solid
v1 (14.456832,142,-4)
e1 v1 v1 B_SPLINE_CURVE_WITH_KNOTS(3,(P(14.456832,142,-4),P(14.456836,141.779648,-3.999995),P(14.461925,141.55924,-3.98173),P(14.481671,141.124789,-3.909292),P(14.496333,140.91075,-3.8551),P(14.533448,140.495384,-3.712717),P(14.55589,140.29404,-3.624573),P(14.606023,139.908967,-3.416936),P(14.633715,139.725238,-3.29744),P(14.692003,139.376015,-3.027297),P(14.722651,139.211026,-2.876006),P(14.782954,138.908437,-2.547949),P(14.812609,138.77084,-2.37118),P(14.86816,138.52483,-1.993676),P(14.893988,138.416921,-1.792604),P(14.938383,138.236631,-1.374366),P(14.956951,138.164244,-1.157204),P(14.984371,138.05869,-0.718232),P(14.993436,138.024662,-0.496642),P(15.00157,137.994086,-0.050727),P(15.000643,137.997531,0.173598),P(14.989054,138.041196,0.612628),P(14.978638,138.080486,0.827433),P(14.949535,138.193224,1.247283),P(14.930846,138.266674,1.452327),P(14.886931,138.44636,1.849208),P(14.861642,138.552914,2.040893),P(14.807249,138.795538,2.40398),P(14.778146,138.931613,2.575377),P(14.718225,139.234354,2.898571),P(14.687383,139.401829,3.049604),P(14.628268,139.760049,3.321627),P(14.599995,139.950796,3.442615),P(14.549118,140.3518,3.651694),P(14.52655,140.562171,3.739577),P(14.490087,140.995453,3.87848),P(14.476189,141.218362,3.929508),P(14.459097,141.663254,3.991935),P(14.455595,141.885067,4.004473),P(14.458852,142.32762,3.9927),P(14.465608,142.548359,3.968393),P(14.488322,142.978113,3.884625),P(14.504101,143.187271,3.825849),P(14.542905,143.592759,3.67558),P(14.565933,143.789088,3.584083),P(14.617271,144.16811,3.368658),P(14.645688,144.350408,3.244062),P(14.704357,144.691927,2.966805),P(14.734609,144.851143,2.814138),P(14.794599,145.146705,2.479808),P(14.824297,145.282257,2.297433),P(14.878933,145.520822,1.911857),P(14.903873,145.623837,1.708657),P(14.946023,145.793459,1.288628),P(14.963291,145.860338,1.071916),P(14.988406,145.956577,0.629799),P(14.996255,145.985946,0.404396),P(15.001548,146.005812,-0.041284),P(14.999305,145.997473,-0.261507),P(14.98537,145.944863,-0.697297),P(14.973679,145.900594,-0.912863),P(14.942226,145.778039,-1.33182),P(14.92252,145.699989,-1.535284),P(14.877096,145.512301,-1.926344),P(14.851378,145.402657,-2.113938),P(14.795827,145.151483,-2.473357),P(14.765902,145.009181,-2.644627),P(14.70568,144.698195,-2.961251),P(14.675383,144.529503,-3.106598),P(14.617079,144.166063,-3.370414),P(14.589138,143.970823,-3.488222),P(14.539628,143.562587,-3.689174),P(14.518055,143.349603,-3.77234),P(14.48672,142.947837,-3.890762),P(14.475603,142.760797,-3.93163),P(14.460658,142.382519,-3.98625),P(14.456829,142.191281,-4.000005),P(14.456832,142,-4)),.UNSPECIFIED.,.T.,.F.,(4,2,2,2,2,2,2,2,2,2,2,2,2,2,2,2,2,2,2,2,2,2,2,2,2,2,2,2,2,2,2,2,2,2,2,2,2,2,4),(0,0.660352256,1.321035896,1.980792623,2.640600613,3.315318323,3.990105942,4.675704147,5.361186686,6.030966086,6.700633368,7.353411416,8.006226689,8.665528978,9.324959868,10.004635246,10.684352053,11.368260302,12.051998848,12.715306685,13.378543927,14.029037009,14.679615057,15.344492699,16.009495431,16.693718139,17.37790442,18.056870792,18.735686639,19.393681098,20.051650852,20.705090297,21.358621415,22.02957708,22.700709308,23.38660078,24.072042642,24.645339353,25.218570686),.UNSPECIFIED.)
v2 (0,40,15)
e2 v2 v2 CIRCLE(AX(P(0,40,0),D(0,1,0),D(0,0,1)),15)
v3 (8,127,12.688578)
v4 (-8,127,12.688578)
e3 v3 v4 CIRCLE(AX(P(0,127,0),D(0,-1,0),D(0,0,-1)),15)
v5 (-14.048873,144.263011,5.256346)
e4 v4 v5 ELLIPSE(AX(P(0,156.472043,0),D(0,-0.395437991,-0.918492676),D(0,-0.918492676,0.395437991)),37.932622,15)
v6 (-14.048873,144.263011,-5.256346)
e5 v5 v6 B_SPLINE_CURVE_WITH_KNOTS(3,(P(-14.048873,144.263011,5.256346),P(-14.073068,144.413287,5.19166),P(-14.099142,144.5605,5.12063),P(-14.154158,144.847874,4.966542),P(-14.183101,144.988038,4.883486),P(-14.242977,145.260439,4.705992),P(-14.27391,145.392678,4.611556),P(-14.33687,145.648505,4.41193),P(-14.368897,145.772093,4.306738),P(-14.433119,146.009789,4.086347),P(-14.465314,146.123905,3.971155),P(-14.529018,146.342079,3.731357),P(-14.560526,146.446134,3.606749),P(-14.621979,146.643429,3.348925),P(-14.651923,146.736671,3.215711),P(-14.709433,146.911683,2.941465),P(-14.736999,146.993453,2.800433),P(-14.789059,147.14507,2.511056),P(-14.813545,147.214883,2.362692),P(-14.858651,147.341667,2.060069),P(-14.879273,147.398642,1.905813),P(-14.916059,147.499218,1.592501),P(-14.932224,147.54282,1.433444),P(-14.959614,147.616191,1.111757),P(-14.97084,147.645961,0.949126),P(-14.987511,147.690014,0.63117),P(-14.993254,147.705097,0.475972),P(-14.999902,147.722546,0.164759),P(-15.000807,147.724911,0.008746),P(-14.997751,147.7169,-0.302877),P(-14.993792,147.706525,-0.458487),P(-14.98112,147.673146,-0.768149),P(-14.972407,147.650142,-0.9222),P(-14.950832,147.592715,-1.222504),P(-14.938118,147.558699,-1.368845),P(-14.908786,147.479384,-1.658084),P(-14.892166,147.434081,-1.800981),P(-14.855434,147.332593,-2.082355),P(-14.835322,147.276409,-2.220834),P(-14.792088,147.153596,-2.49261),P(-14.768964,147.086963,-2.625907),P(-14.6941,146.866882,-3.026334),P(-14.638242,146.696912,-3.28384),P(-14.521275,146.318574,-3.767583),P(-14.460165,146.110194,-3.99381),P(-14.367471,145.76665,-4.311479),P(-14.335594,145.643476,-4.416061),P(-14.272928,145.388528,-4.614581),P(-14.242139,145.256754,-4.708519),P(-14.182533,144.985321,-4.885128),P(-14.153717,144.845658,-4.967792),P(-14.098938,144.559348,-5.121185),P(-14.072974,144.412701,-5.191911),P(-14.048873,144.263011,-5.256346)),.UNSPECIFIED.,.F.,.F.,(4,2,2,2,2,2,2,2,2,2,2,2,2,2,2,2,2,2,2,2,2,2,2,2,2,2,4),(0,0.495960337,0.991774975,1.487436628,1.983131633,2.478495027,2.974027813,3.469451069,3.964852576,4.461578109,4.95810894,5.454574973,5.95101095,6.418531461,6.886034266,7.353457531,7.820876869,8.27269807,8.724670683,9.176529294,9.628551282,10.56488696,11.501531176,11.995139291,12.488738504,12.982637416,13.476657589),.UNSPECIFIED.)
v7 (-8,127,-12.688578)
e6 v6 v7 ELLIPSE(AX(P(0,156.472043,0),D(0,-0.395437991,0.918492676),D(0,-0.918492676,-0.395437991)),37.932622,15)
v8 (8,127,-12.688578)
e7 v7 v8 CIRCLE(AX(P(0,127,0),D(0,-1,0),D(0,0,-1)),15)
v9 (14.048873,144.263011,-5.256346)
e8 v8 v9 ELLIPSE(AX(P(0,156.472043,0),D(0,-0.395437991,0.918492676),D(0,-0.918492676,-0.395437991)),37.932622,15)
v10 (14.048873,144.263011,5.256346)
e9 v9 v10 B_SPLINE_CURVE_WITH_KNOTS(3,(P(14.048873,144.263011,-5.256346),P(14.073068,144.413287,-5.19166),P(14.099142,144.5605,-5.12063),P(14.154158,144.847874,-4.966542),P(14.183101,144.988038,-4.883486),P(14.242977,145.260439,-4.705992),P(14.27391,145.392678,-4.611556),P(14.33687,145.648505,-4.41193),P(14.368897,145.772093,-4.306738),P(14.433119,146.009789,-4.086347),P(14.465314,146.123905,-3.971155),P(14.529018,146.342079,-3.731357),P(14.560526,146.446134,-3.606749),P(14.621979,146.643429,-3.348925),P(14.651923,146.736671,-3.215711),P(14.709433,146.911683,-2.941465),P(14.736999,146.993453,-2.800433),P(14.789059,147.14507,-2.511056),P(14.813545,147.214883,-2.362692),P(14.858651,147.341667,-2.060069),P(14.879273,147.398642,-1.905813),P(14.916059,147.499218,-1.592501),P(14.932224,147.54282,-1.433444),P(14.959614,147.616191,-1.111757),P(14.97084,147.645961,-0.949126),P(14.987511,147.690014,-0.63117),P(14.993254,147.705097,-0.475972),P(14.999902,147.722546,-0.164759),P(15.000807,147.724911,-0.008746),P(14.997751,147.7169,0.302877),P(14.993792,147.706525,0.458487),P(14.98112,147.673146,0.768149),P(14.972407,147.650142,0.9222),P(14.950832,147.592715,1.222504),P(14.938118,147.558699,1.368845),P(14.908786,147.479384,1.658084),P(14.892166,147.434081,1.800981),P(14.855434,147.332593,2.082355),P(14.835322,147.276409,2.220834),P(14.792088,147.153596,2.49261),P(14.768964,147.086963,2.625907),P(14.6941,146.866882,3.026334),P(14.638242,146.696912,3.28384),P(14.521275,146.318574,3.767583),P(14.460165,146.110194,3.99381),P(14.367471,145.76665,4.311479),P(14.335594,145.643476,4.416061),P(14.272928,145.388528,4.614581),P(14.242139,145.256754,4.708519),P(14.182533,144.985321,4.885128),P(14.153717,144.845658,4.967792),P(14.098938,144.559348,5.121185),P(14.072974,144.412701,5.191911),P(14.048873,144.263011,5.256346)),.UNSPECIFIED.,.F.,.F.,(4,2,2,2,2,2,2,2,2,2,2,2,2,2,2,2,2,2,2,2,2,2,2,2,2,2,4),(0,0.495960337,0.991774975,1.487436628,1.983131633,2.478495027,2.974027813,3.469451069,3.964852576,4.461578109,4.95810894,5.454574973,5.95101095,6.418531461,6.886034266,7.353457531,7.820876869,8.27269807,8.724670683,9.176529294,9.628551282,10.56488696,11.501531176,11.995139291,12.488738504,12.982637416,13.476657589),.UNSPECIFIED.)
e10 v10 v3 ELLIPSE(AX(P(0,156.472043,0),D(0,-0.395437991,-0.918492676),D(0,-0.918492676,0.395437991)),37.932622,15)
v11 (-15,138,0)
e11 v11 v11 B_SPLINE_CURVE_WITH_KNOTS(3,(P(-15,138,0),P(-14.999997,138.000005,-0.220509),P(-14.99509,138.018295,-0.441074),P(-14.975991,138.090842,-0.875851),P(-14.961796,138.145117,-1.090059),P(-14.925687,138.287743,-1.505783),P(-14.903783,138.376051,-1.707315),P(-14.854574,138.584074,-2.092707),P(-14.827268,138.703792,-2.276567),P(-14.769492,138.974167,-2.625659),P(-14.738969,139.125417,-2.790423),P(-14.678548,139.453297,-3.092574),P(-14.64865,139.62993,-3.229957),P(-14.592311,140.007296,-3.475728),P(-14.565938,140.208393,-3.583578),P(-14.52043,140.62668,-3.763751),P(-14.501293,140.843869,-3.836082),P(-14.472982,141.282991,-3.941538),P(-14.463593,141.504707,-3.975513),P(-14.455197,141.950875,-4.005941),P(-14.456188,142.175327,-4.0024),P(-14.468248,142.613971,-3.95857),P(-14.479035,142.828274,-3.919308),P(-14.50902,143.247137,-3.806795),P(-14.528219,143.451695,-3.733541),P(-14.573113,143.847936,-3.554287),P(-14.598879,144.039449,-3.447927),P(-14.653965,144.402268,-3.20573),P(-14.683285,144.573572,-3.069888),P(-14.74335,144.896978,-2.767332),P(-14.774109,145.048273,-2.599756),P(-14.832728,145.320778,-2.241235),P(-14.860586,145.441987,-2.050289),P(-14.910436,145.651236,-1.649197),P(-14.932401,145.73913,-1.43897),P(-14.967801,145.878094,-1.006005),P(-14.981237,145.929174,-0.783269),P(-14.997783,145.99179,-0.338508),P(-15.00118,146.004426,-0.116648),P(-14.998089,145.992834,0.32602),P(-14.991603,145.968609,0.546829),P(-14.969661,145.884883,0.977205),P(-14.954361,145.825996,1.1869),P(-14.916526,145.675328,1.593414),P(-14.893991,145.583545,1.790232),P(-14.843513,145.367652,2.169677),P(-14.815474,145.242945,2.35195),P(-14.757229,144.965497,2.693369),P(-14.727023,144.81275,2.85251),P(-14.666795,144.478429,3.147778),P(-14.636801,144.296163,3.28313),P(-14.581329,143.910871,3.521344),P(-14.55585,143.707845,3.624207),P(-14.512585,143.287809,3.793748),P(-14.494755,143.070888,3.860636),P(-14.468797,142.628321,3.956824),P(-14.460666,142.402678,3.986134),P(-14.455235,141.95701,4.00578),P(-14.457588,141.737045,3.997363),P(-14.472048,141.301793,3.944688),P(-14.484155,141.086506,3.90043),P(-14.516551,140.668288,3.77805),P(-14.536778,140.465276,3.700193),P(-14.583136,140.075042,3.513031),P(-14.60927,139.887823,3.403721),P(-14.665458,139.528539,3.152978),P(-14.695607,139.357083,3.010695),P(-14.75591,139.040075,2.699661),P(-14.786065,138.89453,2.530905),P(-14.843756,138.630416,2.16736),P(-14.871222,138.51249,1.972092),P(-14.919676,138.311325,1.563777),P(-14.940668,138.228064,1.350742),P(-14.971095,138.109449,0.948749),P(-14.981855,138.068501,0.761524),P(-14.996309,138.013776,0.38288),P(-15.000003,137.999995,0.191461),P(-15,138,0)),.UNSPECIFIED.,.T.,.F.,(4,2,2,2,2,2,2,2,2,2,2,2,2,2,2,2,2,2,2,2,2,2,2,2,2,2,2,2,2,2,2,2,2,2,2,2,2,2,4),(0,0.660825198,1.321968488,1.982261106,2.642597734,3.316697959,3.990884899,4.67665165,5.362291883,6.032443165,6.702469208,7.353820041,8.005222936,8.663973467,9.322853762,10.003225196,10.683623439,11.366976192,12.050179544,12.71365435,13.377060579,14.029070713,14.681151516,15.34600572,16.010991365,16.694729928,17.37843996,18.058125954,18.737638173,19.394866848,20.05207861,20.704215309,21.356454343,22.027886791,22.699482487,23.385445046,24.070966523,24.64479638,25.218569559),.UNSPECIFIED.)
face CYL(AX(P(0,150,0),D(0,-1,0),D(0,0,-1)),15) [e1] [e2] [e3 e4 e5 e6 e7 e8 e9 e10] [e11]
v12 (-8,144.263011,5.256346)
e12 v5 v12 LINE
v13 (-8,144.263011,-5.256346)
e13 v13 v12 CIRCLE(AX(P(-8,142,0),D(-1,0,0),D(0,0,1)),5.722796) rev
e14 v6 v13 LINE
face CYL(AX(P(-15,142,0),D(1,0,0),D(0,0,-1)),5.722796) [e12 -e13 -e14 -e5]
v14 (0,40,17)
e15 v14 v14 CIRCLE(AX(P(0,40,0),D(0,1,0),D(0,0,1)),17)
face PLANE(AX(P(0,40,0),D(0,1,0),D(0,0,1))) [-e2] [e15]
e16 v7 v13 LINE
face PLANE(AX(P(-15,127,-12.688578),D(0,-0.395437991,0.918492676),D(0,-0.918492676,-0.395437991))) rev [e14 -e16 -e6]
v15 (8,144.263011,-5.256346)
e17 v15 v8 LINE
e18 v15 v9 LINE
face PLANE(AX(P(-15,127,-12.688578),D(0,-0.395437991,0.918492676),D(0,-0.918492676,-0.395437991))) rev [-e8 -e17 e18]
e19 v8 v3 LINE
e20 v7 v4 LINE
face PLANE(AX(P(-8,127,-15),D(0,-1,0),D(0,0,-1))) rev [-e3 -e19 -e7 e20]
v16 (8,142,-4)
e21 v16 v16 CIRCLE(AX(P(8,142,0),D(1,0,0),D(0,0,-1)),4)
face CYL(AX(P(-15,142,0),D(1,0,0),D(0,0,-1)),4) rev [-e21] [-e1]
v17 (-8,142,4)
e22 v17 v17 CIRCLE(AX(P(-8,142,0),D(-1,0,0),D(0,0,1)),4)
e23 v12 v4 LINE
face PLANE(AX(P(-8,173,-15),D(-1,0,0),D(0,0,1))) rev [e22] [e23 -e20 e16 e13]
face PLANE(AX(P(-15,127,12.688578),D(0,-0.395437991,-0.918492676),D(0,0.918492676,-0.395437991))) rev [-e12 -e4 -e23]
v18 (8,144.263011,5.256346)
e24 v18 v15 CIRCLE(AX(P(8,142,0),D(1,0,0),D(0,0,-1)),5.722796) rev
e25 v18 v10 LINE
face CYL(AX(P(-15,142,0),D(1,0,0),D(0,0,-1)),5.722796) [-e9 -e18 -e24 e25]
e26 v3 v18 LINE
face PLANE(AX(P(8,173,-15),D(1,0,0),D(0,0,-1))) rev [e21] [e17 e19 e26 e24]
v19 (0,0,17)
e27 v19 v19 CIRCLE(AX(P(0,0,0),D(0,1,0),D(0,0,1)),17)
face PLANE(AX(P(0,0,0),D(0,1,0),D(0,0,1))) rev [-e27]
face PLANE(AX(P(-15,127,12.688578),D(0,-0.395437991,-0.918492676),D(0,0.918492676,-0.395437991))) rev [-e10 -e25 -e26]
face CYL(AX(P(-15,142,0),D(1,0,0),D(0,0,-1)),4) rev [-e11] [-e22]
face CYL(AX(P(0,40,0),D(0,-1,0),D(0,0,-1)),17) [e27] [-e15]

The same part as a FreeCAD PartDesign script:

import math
import FreeCAD as App
import Part
import Sketcher

V = App.Vector
Q = App.Units.Quantity

doc = App.newDocument("Part")
body = doc.addObject("PartDesign::Body", "Body")

# Sketch on XZ plane
sketch1 = doc.addObject("Sketcher::SketchObject", "Sketch")
body.addObject(sketch1)
sketch1.AttachmentSupport = (doc.XZ_Plane, [""])
sketch1.MapMode = "FlatFace"
sketch1.addGeometry(Part.Circle(V(0, 0, 0), V(0, 0, 1), 17), False)
sketch1.addConstraint([
    Sketcher.Constraint("Coincident", 0, 3, -1, 1),
    Sketcher.Constraint("Diameter", 0, Q("34 mm")),
])
pad1 = doc.addObject("PartDesign::Pad", "Pad")
body.addObject(pad1)
pad1.Profile = sketch1
pad1.Length = 40
pad1.Reversed = True

# Sketch on XZ plane
sketch2 = doc.addObject("Sketcher::SketchObject", "Sketch001")
body.addObject(sketch2)
sketch2.AttachmentSupport = (doc.XZ_Plane, [""])
sketch2.MapMode = "FlatFace"
sketch2.AttachmentOffset = App.Placement(V(0, 0, -40), App.Rotation())
sketch2.addGeometry(Part.Circle(V(0, 0, 0), V(0, 0, 1), 15), False)
sketch2.addConstraint([
    Sketcher.Constraint("Coincident", 0, 3, -1, 1),
    Sketcher.Constraint("Diameter", 0, Q("30 mm")),
])
pad2 = doc.addObject("PartDesign::Pad", "Pad001")
body.addObject(pad2)
pad2.Profile = sketch2
pad2.Length = 110
pad2.Reversed = True

# Sketch on XY plane
sketch3 = doc.addObject("Sketcher::SketchObject", "Sketch002")
body.addObject(sketch3)
sketch3.AttachmentSupport = (doc.XY_Plane, [""])
sketch3.MapMode = "FlatFace"
sketch3.addGeometry([
    Part.LineSegment(V(-8, 173, 0), V(-8, 127, 0)),
    Part.LineSegment(V(-8, 127, 0), V(8, 127, 0)),
    Part.LineSegment(V(8, 127, 0), V(8, 173, 0)),
    Part.LineSegment(V(8, 173, 0), V(-8, 173, 0)),
], False)
sketch3.addConstraint([
    Sketcher.Constraint("Coincident", 0, 2, 1, 1),
    Sketcher.Constraint("Coincident", 1, 2, 2, 1),
    Sketcher.Constraint("Coincident", 2, 2, 3, 1),
    Sketcher.Constraint("Coincident", 3, 2, 0, 1),
    Sketcher.Constraint("Vertical", 0),
    Sketcher.Constraint("Horizontal", 1),
    Sketcher.Constraint("Vertical", 2),
    Sketcher.Constraint("Horizontal", 3),
    Sketcher.Constraint("DistanceX", 1, 1, 1, 2, Q("16 mm")),
    Sketcher.Constraint("DistanceY", 0, 2, 0, 1, Q("46 mm")),
    Sketcher.Constraint("DistanceX", 0, 2, -1, 1, Q("8 mm")),
    Sketcher.Constraint("DistanceY", -1, 1, 0, 2, Q("127 mm")),
])
pocket1 = doc.addObject("PartDesign::Pocket", "Pocket")
body.addObject(pocket1)
pocket1.Profile = sketch3
pocket1.Length = 30
pocket1.Midplane = True

# Sketch on YZ plane
sketch4 = doc.addObject("Sketcher::SketchObject", "Sketch003")
body.addObject(sketch4)
sketch4.AttachmentSupport = (doc.YZ_Plane, [""])
sketch4.MapMode = "FlatFace"
sketch4.addGeometry(Part.Circle(V(142, 0, 0), V(0, 0, 1), 4), False)
sketch4.addConstraint([
    Sketcher.Constraint("PointOnObject", 0, 3, -1),
    Sketcher.Constraint("Diameter", 0, Q("8 mm")),
    Sketcher.Constraint("DistanceX", -1, 1, 0, 3, Q("142 mm")),
])
pocket2 = doc.addObject("PartDesign::Pocket", "Pocket001")
body.addObject(pocket2)
pocket2.Profile = sketch4
pocket2.Length = 30
pocket2.Midplane = True

# Sketch on YZ plane
sketch5 = doc.addObject("Sketcher::SketchObject", "Sketch004")
body.addObject(sketch5)
sketch5.AttachmentSupport = (doc.YZ_Plane, [""])
sketch5.MapMode = "FlatFace"
sketch5.addGeometry([
    Part.LineSegment(V(127, 13, 0), V(144, 5, 0)),  # 0
    Part.ArcOfCircle(Part.Circle(V(142, 0, 0), V(0, 0, 1), 6), math.radians(-67), math.radians(67)),  # 1
    Part.LineSegment(V(144, -5, 0), V(127, -13, 0)),  # 2
    Part.LineSegment(V(127, -13, 0), V(150, -13, 0)),  # 3
    Part.LineSegment(V(150, -13, 0), V(150, 13, 0)),  # 4
    Part.LineSegment(V(150, 13, 0), V(127, 13, 0)),  # 5
], False)
sketch5.addConstraint([
    Sketcher.Constraint("Tangent", 0, 2, 1, 2),
    Sketcher.Constraint("Tangent", 1, 1, 2, 1),
    Sketcher.Constraint("Coincident", 2, 2, 3, 1),
    Sketcher.Constraint("Coincident", 3, 2, 4, 1),
    Sketcher.Constraint("Coincident", 4, 2, 5, 1),
    Sketcher.Constraint("Coincident", 5, 2, 0, 1),
    Sketcher.Constraint("Horizontal", 3),
    Sketcher.Constraint("Vertical", 4),
    Sketcher.Constraint("Horizontal", 5),
    Sketcher.Constraint("Symmetric", 0, 2, 1, 1, -1),
    Sketcher.Constraint("Vertical", 2, 2, 5, 2),
    Sketcher.Constraint("DistanceX", 3, 1, 3, 2, Q("23 mm")),
    Sketcher.Constraint("DistanceX", -1, 1, 1, 3, Q("142 mm")),
    Sketcher.Constraint("DistanceX", -1, 1, 2, 2, Q("127 mm")),
    Sketcher.Constraint("Radius", 1, Q("5.722796 mm")),
    Sketcher.Constraint("DistanceY", 4, 1, 4, 2, Q("25.377155 mm")),
])
pocket3 = doc.addObject("PartDesign::Pocket", "Pocket002")
body.addObject(pocket3)
pocket3.Profile = sketch5
pocket3.Length = 30
pocket3.Midplane = True

doc.recompute()
